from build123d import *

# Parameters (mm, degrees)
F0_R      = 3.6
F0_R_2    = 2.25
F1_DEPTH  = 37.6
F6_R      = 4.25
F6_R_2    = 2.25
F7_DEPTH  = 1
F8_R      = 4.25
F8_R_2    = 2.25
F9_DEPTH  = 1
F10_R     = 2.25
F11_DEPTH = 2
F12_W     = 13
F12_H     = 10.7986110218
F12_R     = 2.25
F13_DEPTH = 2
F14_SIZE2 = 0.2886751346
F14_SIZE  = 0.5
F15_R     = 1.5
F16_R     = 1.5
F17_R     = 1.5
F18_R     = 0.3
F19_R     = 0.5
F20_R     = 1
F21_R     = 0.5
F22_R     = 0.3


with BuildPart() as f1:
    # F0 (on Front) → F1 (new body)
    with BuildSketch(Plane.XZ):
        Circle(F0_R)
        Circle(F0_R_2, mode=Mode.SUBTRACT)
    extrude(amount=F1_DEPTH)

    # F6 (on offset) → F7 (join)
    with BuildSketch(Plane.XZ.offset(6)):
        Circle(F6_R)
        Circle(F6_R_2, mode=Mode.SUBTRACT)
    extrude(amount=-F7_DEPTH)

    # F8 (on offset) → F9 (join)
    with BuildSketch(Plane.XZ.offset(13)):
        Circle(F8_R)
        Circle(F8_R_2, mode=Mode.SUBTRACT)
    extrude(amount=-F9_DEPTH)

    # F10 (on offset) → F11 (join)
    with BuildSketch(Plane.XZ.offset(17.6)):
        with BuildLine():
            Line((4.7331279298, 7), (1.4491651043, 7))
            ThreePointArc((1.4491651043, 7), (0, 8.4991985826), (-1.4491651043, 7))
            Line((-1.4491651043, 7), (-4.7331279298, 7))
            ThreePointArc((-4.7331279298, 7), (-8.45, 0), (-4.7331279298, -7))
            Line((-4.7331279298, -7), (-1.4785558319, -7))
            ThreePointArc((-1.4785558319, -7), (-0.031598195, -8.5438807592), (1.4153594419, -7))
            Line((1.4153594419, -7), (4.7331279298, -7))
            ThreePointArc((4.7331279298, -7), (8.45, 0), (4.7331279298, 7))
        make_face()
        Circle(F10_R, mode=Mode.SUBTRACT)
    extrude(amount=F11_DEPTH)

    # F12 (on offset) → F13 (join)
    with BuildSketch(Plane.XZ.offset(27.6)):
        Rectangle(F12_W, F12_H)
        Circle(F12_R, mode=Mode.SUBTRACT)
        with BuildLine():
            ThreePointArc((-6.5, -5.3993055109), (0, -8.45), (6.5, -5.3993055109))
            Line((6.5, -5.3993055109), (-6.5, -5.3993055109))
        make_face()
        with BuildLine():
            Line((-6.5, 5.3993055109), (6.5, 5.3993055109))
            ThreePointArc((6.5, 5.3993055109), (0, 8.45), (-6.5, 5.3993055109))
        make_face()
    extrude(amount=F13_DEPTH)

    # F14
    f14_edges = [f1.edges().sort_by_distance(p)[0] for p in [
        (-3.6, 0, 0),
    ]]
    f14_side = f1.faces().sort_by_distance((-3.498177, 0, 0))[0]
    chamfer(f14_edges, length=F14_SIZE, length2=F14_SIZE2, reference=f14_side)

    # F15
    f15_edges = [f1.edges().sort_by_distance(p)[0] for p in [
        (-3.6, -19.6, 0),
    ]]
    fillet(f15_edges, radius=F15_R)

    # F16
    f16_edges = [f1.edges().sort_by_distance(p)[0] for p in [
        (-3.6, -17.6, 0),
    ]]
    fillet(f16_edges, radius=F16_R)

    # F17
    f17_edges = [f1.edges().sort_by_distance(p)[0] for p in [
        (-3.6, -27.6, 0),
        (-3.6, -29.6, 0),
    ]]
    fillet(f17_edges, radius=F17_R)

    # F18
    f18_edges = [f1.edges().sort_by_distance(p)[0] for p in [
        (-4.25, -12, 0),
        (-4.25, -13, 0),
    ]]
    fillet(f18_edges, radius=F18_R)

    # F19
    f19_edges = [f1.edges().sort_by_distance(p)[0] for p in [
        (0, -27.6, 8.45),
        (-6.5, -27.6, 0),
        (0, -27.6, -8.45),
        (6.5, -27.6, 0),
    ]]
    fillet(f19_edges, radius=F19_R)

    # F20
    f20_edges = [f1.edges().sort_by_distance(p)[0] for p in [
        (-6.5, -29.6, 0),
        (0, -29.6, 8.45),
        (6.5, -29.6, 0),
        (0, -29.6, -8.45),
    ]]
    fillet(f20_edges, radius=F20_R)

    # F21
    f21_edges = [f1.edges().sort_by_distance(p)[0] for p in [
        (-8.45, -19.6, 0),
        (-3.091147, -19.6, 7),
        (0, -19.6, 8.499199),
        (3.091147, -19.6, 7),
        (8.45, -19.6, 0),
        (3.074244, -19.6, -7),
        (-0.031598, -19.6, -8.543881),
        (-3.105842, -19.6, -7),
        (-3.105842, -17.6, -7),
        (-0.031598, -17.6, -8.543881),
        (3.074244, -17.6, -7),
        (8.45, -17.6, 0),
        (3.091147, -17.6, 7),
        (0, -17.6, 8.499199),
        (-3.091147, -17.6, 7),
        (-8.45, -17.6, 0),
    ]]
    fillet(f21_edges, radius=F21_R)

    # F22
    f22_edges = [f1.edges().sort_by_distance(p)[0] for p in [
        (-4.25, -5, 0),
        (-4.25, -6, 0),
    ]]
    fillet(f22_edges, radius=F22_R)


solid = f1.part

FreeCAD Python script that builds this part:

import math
import FreeCAD as App
import Part
import Sketcher


def edges_at(feature, points):
    """Names of the edges that pass closest to the given points."""
    edges = feature.Shape.Edges
    near = lambda p: min(range(len(edges)), key=lambda i: edges[i].distToShape(Part.Vertex(*p))[0])
    return sorted({f"Edge{near(p) + 1}" for p in points})

doc = App.newDocument("Part")
body = doc.addObject("PartDesign::Body", "Body")

sketch1 = doc.addObject("Sketcher::SketchObject", "Sketch")
body.addObject(sketch1)
sketch1.AttachmentSupport = (doc.XZ_Plane, [""])
sketch1.MapMode = "FlatFace"
sketch1.addGeometry([
    Part.Circle(App.Vector(0, 0, 0), App.Vector(0, 0, 1), 3.6),
    Part.Circle(App.Vector(0, 0, 0), App.Vector(0, 0, 1), 2.25),
], False)
sketch1.addConstraint([
    Sketcher.Constraint("Coincident", 0, 3, -1, 1),
    Sketcher.Constraint("Coincident", 1, 3, -1, 1),
    Sketcher.Constraint("Diameter", 0, 7.2),
    Sketcher.Constraint("Diameter", 1, 4.5),
])
pad1 = doc.addObject("PartDesign::Pad", "Pad")
body.addObject(pad1)
pad1.Profile = sketch1
pad1.Length = 37.6

sketch2 = doc.addObject("Sketcher::SketchObject", "Sketch001")
body.addObject(sketch2)
sketch2.AttachmentSupport = (doc.XZ_Plane, [""])
sketch2.MapMode = "FlatFace"
sketch2.AttachmentOffset = App.Placement(App.Vector(0, 0, 6), App.Rotation())
sketch2.addGeometry([
    Part.Circle(App.Vector(0, 0, 0), App.Vector(0, 0, 1), 4.25),
    Part.Circle(App.Vector(0, 0, 0), App.Vector(0, 0, 1), 2.25),
], False)
sketch2.addConstraint([
    Sketcher.Constraint("Coincident", 0, 3, -1, 1),
    Sketcher.Constraint("Coincident", 1, 3, -1, 1),
    Sketcher.Constraint("Diameter", 0, 8.5),
    Sketcher.Constraint("Diameter", 1, 4.5),
])
pad2 = doc.addObject("PartDesign::Pad", "Pad001")
body.addObject(pad2)
pad2.Profile = sketch2
pad2.Length = 1
pad2.Reversed = True

sketch3 = doc.addObject("Sketcher::SketchObject", "Sketch002")
body.addObject(sketch3)
sketch3.AttachmentSupport = (doc.XZ_Plane, [""])
sketch3.MapMode = "FlatFace"
sketch3.AttachmentOffset = App.Placement(App.Vector(0, 0, 13), App.Rotation())
sketch3.addGeometry([
    Part.Circle(App.Vector(0, 0, 0), App.Vector(0, 0, 1), 4.25),
    Part.Circle(App.Vector(0, 0, 0), App.Vector(0, 0, 1), 2.25),
], False)
sketch3.addConstraint([
    Sketcher.Constraint("Coincident", 0, 3, -1, 1),
    Sketcher.Constraint("Coincident", 1, 3, -1, 1),
    Sketcher.Constraint("Diameter", 0, 8.5),
    Sketcher.Constraint("Diameter", 1, 4.5),
])
pad3 = doc.addObject("PartDesign::Pad", "Pad002")
body.addObject(pad3)
pad3.Profile = sketch3
pad3.Length = 1
pad3.Reversed = True

sketch4 = doc.addObject("Sketcher::SketchObject", "Sketch003")
body.addObject(sketch4)
sketch4.AttachmentSupport = (doc.XZ_Plane, [""])
sketch4.MapMode = "FlatFace"
sketch4.AttachmentOffset = App.Placement(App.Vector(0, 0, 17.6), App.Rotation())
sketch4.addGeometry([
    Part.LineSegment(App.Vector(4.733128, 7, 0), App.Vector(1.449165, 7, 0)),
    Part.ArcOfCircle(Part.Circle(App.Vector(0, 7.049199, 0), App.Vector(0, 0, 1), 1.45), math.radians(-1.944422), math.radians(181.944422)),
    Part.LineSegment(App.Vector(-1.449165, 7, 0), App.Vector(-4.733128, 7, 0)),
    Part.ArcOfCircle(Part.Circle(App.Vector(0, 0, 0), App.Vector(0, 0, 1), 8.45), math.radians(124.065029), math.radians(235.934971)),
    Part.LineSegment(App.Vector(-4.733128, -7, 0), App.Vector(-1.478556, -7, 0)),
    Part.ArcOfCircle(Part.Circle(App.Vector(-0.031598, -7.093881, 0), App.Vector(0, 0, 1), 1.45), math.radians(176.287768), math.radians(363.712232)),
    Part.LineSegment(App.Vector(1.415359, -7, 0), App.Vector(4.733128, -7, 0)),
    Part.ArcOfCircle(Part.Circle(App.Vector(0, 0, 0), App.Vector(0, 0, 1), 8.45), math.radians(-55.934971), math.radians(55.934971)),
    Part.Circle(App.Vector(0, 0, 0), App.Vector(0, 0, 1), 2.25),
], False)
sketch4.addConstraint([
    Sketcher.Constraint("Coincident", 0, 2, 1, 1),
    Sketcher.Constraint("Coincident", 1, 2, 2, 1),
    Sketcher.Constraint("Coincident", 2, 2, 3, 1),
    Sketcher.Constraint("Coincident", 3, 2, 4, 1),
    Sketcher.Constraint("Coincident", 4, 2, 5, 1),
    Sketcher.Constraint("Coincident", 5, 2, 6, 1),
    Sketcher.Constraint("Coincident", 6, 2, 7, 1),
    Sketcher.Constraint("Coincident", 7, 2, 0, 1),
    Sketcher.Constraint("Horizontal", 0),
    Sketcher.Constraint("Horizontal", 2),
    Sketcher.Constraint("Horizontal", 4),
    Sketcher.Constraint("Horizontal", 6),
    Sketcher.Constraint("Coincident", 3, 3, -1, 1),
    Sketcher.Constraint("Coincident", 7, 3, -1, 1),
    Sketcher.Constraint("Coincident", 8, 3, -1, 1),
    Sketcher.Constraint("Equal", 1, 5),
    Sketcher.Constraint("Equal", 3, 7),
    Sketcher.Constraint("Symmetric", 0, 2, 1, 2, -2),
    Sketcher.Constraint("Horizontal", 4, 2, 5, 2),
    Sketcher.Constraint("Vertical", 2, 2, 3, 2),
    Sketcher.Constraint("Diameter", 8, 4.5),
    Sketcher.Constraint("Radius", 1, 1.45),
    Sketcher.Constraint("Radius", 3, 8.45),
    Sketcher.Constraint("DistanceY", -1, 1, 0, 2, 7.0),
    Sketcher.Constraint("DistanceX", 6, 1, 6, 2, 3.317768),
    Sketcher.Constraint("DistanceY", -1, 1, 1, 3, 7.049199),
    Sketcher.Constraint("DistanceX", 5, 3, -1, 1, 0.031598),
])
pad4 = doc.addObject("PartDesign::Pad", "Pad003")
body.addObject(pad4)
pad4.Profile = sketch4
pad4.Length = 2

sketch5 = doc.addObject("Sketcher::SketchObject", "Sketch004")
body.addObject(sketch5)
sketch5.AttachmentSupport = (doc.XZ_Plane, [""])
sketch5.MapMode = "FlatFace"
sketch5.AttachmentOffset = App.Placement(App.Vector(0, 0, 27.6), App.Rotation())
sketch5.addGeometry([
    Part.LineSegment(App.Vector(-6.5, 5.399306, 0), App.Vector(-6.5, -5.399306, 0)),
    Part.ArcOfCircle(Part.Circle(App.Vector(0, 0, 0), App.Vector(0, 0, 1), 8.45), math.radians(-140.284863), math.radians(-39.715137)),
    Part.LineSegment(App.Vector(6.5, -5.399306, 0), App.Vector(6.5, 5.399306, 0)),
    Part.ArcOfCircle(Part.Circle(App.Vector(0, 0, 0), App.Vector(0, 0, 1), 8.45), math.radians(39.715137), math.radians(140.284863)),
    Part.Circle(App.Vector(0, 0, 0), App.Vector(0, 0, 1), 2.25),
], False)
sketch5.addConstraint([
    Sketcher.Constraint("Coincident", 0, 2, 1, 1),
    Sketcher.Constraint("Coincident", 1, 2, 2, 1),
    Sketcher.Constraint("Coincident", 2, 2, 3, 1),
    Sketcher.Constraint("Coincident", 3, 2, 0, 1),
    Sketcher.Constraint("Vertical", 0),
    Sketcher.Constraint("Vertical", 2),
    Sketcher.Constraint("Coincident", 1, 3, -1, 1),
    Sketcher.Constraint("Coincident", 3, 3, -1, 1),
    Sketcher.Constraint("Coincident", 4, 3, -1, 1),
    Sketcher.Constraint("Equal", 1, 3),
    Sketcher.Constraint("Horizontal", 0, 2, 1, 2),
    Sketcher.Constraint("Diameter", 4, 4.5),
    Sketcher.Constraint("Radius", 1, 8.45),
    Sketcher.Constraint("DistanceX", 0, 2, 1, 2, 13.0),
])
pad5 = doc.addObject("PartDesign::Pad", "Pad004")
body.addObject(pad5)
pad5.Profile = sketch5
pad5.Length = 2
doc.recompute()

chamfer = doc.addObject("PartDesign::Chamfer", "Chamfer")
body.addObject(chamfer)
chamfer.Base = (pad5, edges_at(pad5, [(-3.6, 0, 0)]))
chamfer.ChamferType = "Two distances"
chamfer.Size = 0.5
chamfer.Size2 = 0.288675
doc.recompute()

fillet = doc.addObject("PartDesign::Fillet", "Fillet")
body.addObject(fillet)
fillet.Base = (chamfer, edges_at(chamfer, [(-3.6, -19.6, 0)]))
fillet.Radius = 1.5
doc.recompute()

fillet2 = doc.addObject("PartDesign::Fillet", "Fillet001")
body.addObject(fillet2)
fillet2.Base = (fillet, edges_at(fillet, [(-3.6, -17.6, 0)]))
fillet2.Radius = 1.5
doc.recompute()

fillet3 = doc.addObject("PartDesign::Fillet", "Fillet002")
body.addObject(fillet3)
fillet3.Base = (fillet2, edges_at(fillet2, [(-3.6, -27.6, 0), (-3.6, -29.6, 0)]))
fillet3.Radius = 1.5
doc.recompute()

fillet4 = doc.addObject("PartDesign::Fillet", "Fillet003")
body.addObject(fillet4)
fillet4.Base = (fillet3, edges_at(fillet3, [(-4.25, -12, 0), (-4.25, -13, 0)]))
fillet4.Radius = 0.3
doc.recompute()

fillet5 = doc.addObject("PartDesign::Fillet", "Fillet004")
body.addObject(fillet5)
fillet5.Base = (fillet4, edges_at(fillet4, [
    (0, -27.6, 8.45),
    (-6.5, -27.6, 0),
    (0, -27.6, -8.45),
    (6.5, -27.6, 0),
]))
fillet5.Radius = 0.5
doc.recompute()

fillet6 = doc.addObject("PartDesign::Fillet", "Fillet005")
body.addObject(fillet6)
fillet6.Base = (fillet5, edges_at(fillet5, [
    (-6.5, -29.6, 0),
    (0, -29.6, 8.45),
    (6.5, -29.6, 0),
    (0, -29.6, -8.45),
]))
fillet6.Radius = 1
doc.recompute()

fillet7 = doc.addObject("PartDesign::Fillet", "Fillet006")
body.addObject(fillet7)
fillet7.Base = (fillet6, edges_at(fillet6, [
    (-8.45, -19.6, 0),
    (-3.091, -19.6, 7),
    (0, -19.6, 8.499),
    (3.091, -19.6, 7),
    (8.45, -19.6, 0),
    (3.074, -19.6, -7),
    (-0.032, -19.6, -8.544),
    (-3.106, -19.6, -7),
    (-3.106, -17.6, -7),
    (-0.032, -17.6, -8.544),
    (3.074, -17.6, -7),
    (8.45, -17.6, 0),
    (3.091, -17.6, 7),
    (0, -17.6, 8.499),
    (-3.091, -17.6, 7),
    (-8.45, -17.6, 0),
]))
fillet7.Radius = 0.5
doc.recompute()

fillet8 = doc.addObject("PartDesign::Fillet", "Fillet007")
body.addObject(fillet8)
fillet8.Base = (fillet7, edges_at(fillet7, [(-4.25, -5, 0), (-4.25, -6, 0)]))
fillet8.Radius = 0.3

doc.recompute()
